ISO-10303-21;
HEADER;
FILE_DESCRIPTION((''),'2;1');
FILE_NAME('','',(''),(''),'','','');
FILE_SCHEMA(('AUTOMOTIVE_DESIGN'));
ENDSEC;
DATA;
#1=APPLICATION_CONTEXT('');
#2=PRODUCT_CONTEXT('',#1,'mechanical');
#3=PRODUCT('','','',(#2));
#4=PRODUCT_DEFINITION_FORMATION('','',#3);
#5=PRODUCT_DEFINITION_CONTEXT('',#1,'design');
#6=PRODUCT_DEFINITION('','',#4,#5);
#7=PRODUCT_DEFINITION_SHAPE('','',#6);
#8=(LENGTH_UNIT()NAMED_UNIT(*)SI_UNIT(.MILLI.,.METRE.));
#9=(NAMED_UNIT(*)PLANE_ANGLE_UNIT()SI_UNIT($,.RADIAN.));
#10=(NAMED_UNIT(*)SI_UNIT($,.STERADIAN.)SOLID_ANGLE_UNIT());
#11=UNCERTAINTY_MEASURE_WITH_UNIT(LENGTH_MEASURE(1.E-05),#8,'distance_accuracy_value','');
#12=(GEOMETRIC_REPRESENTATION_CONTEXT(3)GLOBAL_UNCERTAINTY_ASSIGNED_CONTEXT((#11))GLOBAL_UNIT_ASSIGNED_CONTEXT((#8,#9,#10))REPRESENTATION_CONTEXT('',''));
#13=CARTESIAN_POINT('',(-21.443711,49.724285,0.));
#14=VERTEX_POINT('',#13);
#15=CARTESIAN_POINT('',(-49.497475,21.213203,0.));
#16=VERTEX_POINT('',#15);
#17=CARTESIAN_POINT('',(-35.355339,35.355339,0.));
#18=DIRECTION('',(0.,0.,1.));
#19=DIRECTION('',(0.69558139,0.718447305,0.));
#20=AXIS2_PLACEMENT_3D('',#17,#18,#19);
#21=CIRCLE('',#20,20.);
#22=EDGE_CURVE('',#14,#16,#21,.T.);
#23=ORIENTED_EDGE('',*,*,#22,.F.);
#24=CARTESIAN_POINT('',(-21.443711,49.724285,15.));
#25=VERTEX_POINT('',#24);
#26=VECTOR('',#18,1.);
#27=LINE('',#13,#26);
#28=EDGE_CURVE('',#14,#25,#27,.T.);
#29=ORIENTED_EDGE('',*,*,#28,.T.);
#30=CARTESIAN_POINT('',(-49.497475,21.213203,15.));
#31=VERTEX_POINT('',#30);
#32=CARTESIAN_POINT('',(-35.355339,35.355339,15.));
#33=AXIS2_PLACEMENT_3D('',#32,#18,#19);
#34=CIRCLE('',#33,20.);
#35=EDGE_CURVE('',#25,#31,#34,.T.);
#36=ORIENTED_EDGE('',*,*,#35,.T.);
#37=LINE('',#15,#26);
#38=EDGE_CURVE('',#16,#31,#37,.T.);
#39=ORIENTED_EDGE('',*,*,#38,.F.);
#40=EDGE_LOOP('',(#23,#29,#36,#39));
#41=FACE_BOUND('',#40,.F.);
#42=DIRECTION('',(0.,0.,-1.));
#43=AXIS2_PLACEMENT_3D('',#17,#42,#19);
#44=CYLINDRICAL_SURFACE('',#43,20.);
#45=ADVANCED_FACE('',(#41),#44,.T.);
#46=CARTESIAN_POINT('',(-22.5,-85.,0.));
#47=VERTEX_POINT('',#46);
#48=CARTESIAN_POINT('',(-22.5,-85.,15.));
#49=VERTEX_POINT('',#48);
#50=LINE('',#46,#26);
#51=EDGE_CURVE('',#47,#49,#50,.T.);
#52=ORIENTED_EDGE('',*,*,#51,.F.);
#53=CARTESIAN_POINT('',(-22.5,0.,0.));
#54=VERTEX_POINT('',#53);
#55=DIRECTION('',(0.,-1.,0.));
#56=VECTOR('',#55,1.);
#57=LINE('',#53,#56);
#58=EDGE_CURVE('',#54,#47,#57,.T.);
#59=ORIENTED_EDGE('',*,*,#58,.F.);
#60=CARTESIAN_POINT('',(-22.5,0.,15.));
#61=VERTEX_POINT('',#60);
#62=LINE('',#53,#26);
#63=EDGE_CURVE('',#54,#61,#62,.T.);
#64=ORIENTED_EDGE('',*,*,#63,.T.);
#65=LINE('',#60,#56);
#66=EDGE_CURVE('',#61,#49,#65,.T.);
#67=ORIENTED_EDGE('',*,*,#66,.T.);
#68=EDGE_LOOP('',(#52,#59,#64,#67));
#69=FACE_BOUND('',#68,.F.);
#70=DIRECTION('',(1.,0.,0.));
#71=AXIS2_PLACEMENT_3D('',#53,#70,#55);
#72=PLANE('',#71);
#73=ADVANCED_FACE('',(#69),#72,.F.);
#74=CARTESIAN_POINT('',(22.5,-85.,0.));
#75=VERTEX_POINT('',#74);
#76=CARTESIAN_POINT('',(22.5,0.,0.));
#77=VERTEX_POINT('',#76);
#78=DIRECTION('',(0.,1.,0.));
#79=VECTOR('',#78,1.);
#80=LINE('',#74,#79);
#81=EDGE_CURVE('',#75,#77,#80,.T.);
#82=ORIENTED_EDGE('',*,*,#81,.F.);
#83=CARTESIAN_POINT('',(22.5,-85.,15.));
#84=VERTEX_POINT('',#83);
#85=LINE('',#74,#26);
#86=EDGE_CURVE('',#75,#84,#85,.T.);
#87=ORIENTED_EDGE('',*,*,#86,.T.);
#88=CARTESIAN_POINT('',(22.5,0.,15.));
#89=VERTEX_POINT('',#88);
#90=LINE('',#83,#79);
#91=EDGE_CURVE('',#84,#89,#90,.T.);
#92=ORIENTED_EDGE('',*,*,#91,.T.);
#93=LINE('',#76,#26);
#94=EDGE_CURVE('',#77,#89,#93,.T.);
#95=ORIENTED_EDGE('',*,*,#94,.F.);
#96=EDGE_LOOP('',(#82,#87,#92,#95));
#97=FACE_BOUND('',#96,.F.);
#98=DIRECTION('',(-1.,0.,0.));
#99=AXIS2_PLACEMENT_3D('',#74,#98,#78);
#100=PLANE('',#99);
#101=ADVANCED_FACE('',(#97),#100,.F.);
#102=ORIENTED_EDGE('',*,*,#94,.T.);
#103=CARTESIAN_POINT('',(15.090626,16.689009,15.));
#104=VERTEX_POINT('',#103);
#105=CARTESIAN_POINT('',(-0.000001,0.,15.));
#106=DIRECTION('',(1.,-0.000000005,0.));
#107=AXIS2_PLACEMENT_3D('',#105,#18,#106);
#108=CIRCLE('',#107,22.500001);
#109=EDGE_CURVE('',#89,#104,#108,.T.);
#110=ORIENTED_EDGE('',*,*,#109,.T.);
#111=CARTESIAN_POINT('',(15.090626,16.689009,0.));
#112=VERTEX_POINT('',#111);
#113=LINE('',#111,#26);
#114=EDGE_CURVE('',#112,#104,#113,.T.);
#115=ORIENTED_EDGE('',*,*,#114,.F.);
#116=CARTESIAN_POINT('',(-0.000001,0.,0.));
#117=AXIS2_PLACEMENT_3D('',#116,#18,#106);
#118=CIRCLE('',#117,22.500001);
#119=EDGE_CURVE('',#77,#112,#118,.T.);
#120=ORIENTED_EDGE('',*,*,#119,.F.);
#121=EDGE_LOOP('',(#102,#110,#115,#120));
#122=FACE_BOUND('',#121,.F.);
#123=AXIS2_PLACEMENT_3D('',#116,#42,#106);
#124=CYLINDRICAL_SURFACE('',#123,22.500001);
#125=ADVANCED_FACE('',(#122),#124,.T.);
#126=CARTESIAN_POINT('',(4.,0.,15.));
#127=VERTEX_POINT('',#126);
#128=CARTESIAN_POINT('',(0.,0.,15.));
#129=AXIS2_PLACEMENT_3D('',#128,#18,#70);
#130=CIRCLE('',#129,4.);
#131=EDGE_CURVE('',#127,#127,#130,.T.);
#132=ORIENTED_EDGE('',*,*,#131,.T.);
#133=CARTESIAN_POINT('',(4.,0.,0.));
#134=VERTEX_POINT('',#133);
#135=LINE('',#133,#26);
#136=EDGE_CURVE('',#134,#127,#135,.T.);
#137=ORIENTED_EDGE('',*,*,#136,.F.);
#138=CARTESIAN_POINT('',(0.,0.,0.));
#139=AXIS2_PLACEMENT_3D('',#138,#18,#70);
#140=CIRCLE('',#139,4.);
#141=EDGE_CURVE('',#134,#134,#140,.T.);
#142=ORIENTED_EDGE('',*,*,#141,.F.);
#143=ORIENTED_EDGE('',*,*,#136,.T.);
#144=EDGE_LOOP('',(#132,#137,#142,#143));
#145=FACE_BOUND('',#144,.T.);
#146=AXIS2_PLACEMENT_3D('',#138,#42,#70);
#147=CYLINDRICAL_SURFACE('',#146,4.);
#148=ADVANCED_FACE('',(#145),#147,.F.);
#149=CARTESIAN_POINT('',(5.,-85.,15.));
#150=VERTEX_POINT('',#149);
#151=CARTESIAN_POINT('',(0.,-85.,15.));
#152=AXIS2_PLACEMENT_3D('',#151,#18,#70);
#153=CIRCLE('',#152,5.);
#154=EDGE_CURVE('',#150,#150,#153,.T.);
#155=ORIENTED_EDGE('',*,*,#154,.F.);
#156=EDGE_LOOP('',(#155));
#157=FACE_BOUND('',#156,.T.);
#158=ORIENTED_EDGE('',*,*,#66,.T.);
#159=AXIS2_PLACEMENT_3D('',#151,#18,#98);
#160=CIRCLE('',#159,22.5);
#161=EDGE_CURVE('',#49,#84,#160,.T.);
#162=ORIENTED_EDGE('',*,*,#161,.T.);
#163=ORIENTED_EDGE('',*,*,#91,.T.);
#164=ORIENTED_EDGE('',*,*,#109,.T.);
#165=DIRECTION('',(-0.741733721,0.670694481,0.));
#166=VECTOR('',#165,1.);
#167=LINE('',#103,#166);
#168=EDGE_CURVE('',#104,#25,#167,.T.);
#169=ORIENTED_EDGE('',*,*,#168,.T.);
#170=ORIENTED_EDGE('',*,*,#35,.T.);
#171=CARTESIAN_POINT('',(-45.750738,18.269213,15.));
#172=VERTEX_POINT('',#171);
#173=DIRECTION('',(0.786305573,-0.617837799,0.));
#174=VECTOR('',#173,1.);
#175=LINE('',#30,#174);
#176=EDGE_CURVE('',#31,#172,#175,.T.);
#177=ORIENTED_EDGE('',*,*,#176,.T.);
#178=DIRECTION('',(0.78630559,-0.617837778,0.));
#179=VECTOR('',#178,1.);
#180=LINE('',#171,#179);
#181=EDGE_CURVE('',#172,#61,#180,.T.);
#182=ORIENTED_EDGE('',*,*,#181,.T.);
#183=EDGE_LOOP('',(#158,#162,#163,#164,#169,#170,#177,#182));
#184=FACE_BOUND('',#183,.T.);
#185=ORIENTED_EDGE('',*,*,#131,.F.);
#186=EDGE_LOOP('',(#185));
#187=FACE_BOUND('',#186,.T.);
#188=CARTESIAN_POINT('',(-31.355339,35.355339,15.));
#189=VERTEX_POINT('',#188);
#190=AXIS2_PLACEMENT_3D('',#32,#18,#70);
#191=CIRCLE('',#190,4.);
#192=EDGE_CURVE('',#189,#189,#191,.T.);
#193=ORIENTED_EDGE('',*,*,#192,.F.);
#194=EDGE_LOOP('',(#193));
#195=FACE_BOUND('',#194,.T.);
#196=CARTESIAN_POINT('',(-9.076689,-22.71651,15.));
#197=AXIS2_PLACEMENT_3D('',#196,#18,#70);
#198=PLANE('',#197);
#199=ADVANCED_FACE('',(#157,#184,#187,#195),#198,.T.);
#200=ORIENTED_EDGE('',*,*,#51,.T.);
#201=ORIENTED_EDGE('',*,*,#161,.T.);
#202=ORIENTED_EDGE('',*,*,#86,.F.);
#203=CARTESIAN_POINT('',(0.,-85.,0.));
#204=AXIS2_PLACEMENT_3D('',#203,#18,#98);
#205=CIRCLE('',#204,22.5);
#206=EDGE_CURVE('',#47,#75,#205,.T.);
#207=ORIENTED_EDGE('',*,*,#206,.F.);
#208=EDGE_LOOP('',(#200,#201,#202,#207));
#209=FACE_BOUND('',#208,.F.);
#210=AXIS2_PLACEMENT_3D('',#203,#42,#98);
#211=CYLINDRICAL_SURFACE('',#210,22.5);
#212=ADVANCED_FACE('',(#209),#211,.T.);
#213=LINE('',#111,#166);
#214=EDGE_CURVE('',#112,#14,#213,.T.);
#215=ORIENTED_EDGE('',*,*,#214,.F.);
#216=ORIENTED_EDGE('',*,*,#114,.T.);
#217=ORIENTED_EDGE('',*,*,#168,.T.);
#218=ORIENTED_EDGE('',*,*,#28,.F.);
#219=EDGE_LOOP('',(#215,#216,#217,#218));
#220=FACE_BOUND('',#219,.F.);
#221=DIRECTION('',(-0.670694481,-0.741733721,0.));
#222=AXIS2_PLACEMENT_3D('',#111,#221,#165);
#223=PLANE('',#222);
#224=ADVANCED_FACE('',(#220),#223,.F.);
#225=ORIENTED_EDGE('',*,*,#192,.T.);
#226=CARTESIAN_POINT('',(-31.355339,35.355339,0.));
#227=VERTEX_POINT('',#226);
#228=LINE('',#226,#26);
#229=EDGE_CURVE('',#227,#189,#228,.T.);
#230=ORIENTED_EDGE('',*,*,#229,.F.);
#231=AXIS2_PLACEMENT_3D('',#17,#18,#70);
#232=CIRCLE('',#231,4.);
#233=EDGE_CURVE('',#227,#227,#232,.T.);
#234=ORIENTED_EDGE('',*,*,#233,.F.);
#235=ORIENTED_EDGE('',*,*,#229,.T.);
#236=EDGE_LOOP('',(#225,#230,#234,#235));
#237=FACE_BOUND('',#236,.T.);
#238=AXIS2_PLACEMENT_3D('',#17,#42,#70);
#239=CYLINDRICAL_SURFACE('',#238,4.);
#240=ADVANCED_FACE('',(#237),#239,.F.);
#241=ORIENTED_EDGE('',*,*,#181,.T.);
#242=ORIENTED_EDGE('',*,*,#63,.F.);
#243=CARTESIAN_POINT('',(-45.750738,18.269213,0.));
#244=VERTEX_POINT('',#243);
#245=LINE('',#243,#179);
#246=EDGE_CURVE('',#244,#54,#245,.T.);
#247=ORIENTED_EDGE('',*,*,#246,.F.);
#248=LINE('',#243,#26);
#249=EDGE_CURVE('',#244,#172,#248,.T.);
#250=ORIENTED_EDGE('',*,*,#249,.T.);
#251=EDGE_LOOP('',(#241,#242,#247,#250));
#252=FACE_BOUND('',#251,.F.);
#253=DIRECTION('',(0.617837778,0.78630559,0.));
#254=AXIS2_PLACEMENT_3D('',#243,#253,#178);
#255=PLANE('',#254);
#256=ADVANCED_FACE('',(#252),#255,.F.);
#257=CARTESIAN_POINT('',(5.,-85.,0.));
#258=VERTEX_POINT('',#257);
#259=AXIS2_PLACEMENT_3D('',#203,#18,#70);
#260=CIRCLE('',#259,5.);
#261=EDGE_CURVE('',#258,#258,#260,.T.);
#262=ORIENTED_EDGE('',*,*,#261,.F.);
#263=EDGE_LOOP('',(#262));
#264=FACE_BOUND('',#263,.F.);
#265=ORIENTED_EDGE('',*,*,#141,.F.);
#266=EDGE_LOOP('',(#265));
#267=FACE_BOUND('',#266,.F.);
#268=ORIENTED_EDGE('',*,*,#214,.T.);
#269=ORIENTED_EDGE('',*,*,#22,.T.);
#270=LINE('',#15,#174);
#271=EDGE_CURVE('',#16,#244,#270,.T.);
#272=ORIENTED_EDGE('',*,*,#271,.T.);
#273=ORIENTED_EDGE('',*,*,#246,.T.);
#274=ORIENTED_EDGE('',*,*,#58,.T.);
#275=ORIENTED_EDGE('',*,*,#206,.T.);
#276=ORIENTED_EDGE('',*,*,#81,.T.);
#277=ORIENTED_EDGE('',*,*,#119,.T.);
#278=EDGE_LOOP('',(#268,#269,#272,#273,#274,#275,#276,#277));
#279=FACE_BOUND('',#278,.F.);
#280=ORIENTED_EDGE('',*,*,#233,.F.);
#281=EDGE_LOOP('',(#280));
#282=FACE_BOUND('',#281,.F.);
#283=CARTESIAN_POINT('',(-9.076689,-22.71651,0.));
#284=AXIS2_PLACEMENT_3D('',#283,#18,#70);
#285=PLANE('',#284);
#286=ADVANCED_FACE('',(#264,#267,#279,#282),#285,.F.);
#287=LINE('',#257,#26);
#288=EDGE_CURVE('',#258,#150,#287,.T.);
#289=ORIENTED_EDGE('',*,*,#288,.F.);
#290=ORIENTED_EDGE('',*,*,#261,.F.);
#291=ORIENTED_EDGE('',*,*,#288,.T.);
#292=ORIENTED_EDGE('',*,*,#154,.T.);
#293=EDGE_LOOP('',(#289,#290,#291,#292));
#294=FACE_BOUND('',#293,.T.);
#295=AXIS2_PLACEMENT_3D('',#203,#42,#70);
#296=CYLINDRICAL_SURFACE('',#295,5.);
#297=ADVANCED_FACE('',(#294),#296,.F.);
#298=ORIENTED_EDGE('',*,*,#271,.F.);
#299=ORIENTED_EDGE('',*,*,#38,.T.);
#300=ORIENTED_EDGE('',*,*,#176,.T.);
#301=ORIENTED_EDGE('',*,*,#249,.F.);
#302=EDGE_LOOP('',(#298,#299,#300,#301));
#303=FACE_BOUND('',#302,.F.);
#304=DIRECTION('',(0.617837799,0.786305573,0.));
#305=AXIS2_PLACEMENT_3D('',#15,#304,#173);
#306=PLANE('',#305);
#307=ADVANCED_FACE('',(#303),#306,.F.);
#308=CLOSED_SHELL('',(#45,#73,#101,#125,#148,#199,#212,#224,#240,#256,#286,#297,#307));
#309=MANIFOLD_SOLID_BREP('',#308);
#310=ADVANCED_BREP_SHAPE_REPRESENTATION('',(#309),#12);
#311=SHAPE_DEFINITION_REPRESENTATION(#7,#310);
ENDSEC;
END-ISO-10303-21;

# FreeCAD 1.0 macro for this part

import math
import FreeCAD as App
import Part
import Sketcher

doc = App.newDocument("Part")
params = doc.addObject("Spreadsheet::Sheet", "Params")
for row, (alias, value) in enumerate([
    ("sketch1_diameter", "10 mm"),
    ("sketch1_diameter2", "8 mm"),
    ("sketch1_radius", "20 mm"),
    ("sketch1_radius2", "22.5 mm"),
    ("sketch1_height", "85 mm"),
    ("pad1_length", "15 mm"),
], start=1):
    params.set(f"A{row}", alias)
    params.set(f"B{row}", "=" + value)
    params.setAlias(f"B{row}", alias)

body = doc.addObject("PartDesign::Body", "Body")

# Sketch on XY plane
sketch1 = body.newObject("Sketcher::SketchObject", "Sketch")
sketch1.AttachmentSupport = (doc.getObject("XY_Plane"), [""])
sketch1.MapMode = "FlatFace"
sketch1.addGeometry([
    Part.LineSegment(App.Vector(15.1, 16.7, 0), App.Vector(-21.4, 49.7, 0)),  # 0
    Part.ArcOfCircle(Part.Circle(App.Vector(-35.4, 35.4, 0), App.Vector(0, 0, 1), 20), math.radians(46), math.radians(225)),  # 1
    Part.LineSegment(App.Vector(-49.5, 21.2, 0), App.Vector(-45.8, 18.3, 0)),  # 2
    Part.LineSegment(App.Vector(-45.8, 18.3, 0), App.Vector(-22.5, 0, 0)),  # 3
    Part.LineSegment(App.Vector(-22.5, 0, 0), App.Vector(-22.5, -85, 0)),  # 4
    Part.ArcOfCircle(Part.Circle(App.Vector(0, -85, 0), App.Vector(0, 0, 1), 22.5), math.radians(180), math.radians(360)),  # 5
    Part.LineSegment(App.Vector(22.5, -85, 0), App.Vector(22.5, 0, 0)),  # 6
    Part.ArcOfCircle(Part.Circle(App.Vector(0, 0, 0), App.Vector(0, 0, 1), 22.5), math.radians(0), math.radians(48)),  # 7
    Part.Circle(App.Vector(0, -85, 0), App.Vector(0, 0, 1), 5),  # 8
    Part.Circle(App.Vector(-35.4, 35.4, 0), App.Vector(0, 0, 1), 4),  # 9
    Part.Circle(App.Vector(0, 0, 0), App.Vector(0, 0, 1), 4),  # 10
], False)
sketch1.addConstraint([
    Sketcher.Constraint("Coincident", 0, 2, 1, 1),
    Sketcher.Constraint("Coincident", 1, 2, 2, 1),
    Sketcher.Constraint("Coincident", 2, 2, 3, 1),
    Sketcher.Constraint("Coincident", 3, 2, 4, 1),
    Sketcher.Constraint("Tangent", 4, 2, 5, 1),
    Sketcher.Constraint("Tangent", 5, 2, 6, 1),
    Sketcher.Constraint("Tangent", 6, 2, 7, 1),
    Sketcher.Constraint("Tangent", 7, 2, 0, 1),
    Sketcher.Constraint("Vertical", 4),
    Sketcher.Constraint("Vertical", 6),
    Sketcher.Constraint("Coincident", 7, 3, -1, 1),
    Sketcher.Constraint("Coincident", 10, 3, -1, 1),
    Sketcher.Constraint("Coincident", 8, 3, 5, 3),
    Sketcher.Constraint("Coincident", 9, 3, 1, 3),
    Sketcher.Constraint("Equal", 5, 7),
    Sketcher.Constraint("Equal", 9, 10),
    Sketcher.Constraint("PointOnObject", 3, 2, -1),
    Sketcher.Constraint("Parallel", 2, 3),
    Sketcher.Constraint("Diameter", 8, 10.0),
    Sketcher.Constraint("Diameter", 9, 8.0),
    Sketcher.Constraint("Radius", 1, 20.0),
    Sketcher.Constraint("Radius", 5, 22.5),
    Sketcher.Constraint("DistanceY", 4, 2, 4, 1, 85.0),
    Sketcher.Constraint("DistanceX", 2, 2, 1, 3, 10.395399),
    Sketcher.Constraint("Distance", 2, 4.764988),
    Sketcher.Constraint("DistanceX", 1, 3, -1, 1, 35.355339),
    Sketcher.Constraint("DistanceY", -1, 1, 1, 3, 35.355339),
    Sketcher.Constraint("DistanceX", 0, 2, -1, 1, 21.443711),
])
sketch1.setExpression("Constraints[18]", "Params.sketch1_diameter")
sketch1.setExpression("Constraints[19]", "Params.sketch1_diameter2")
sketch1.setExpression("Constraints[20]", "Params.sketch1_radius")
sketch1.setExpression("Constraints[21]", "Params.sketch1_radius2")
sketch1.setExpression("Constraints[22]", "Params.sketch1_height")
pad1 = body.newObject("PartDesign::Pad", "Pad")
pad1.Profile = sketch1
pad1.setExpression("Length", "Params.pad1_length")

doc.recompute()
